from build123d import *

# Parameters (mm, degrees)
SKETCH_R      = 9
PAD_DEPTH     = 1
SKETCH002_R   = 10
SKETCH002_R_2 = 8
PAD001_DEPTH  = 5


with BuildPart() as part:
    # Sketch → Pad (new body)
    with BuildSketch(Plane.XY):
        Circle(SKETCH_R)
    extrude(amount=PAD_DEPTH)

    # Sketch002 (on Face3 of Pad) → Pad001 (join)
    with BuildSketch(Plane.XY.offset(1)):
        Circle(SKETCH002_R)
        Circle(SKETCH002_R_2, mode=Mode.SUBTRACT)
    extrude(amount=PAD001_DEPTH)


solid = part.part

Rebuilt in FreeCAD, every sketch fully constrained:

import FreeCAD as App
import Part
import Sketcher
Q = App.Units.Quantity

doc = App.newDocument("Part")
body = doc.addObject("PartDesign::Body", "Body")

# Sketch on XY plane
sketch1 = body.newObject("Sketcher::SketchObject", "Sketch")
sketch1.AttachmentSupport = (doc.getObject("XY_Plane"), [""])
sketch1.MapMode = "FlatFace"
sketch1.addGeometry(Part.Circle(App.Vector(0, 0, 0), App.Vector(0, 0, 1), 9), False)
sketch1.addConstraint([
    Sketcher.Constraint("Coincident", 0, 3, -1, 1),
    Sketcher.Constraint("Diameter", 0, Q("18 mm")),
])
pad1 = body.newObject("PartDesign::Pad", "Pad")
pad1.Profile = sketch1
pad1.Length = 1

# Sketch on XY plane
sketch2 = body.newObject("Sketcher::SketchObject", "Sketch001")
sketch2.AttachmentSupport = (doc.getObject("XY_Plane"), [""])
sketch2.MapMode = "FlatFace"
sketch2.AttachmentOffset = App.Placement(App.Vector(0, 0, 1), App.Rotation())
sketch2.addGeometry([
    Part.Circle(App.Vector(0, 0, 0), App.Vector(0, 0, 1), 10),
    Part.Circle(App.Vector(0, 0, 0), App.Vector(0, 0, 1), 8),
], False)
sketch2.addConstraint([
    Sketcher.Constraint("Coincident", 0, 3, -1, 1),
    Sketcher.Constraint("Coincident", 1, 3, -1, 1),
    Sketcher.Constraint("Diameter", 0, Q("20 mm")),
    Sketcher.Constraint("Diameter", 1, Q("16 mm")),
])
pad2 = body.newObject("PartDesign::Pad", "Pad001")
pad2.Profile = sketch2
pad2.Length = 5

doc.recompute()
